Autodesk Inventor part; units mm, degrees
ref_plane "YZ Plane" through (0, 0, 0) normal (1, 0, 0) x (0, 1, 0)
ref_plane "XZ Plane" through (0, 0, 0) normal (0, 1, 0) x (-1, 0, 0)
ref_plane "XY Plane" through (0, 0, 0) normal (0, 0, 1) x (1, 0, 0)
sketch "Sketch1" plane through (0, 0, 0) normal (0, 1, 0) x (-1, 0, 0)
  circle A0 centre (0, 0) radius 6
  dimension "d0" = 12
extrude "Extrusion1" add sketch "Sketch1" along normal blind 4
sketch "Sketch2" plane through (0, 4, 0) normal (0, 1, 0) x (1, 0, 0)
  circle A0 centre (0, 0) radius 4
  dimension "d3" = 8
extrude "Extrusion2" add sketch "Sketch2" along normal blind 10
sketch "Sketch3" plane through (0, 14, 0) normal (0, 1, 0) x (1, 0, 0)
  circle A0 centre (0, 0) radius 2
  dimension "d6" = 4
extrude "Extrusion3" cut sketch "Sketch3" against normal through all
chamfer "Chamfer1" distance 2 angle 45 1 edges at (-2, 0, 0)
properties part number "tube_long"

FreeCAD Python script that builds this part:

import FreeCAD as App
import Part
import Sketcher
Q = App.Units.Quantity


def edges_at(feature, points):
    """Names of the edges that pass closest to the given points."""
    edges = feature.Shape.Edges
    near = lambda p: min(range(len(edges)), key=lambda i: edges[i].distToShape(Part.Vertex(*p))[0])
    return sorted({f"Edge{near(p) + 1}" for p in points})

doc = App.newDocument("Part")
body = doc.addObject("PartDesign::Body", "Body")

sketch1 = body.newObject("Sketcher::SketchObject", "Sketch")
sketch1.AttachmentSupport = (doc.getObject("XZ_Plane"), [""])
sketch1.MapMode = "FlatFace"
sketch1.addGeometry(Part.Circle(App.Vector(0, 0, 0), App.Vector(0, 0, 1), 6), False)
sketch1.addConstraint([
    Sketcher.Constraint("Coincident", 0, 3, -1, 1),
    Sketcher.Constraint("Diameter", 0, Q("12 mm")),
])
pad1 = body.newObject("PartDesign::Pad", "Pad")
pad1.Profile = sketch1
pad1.Length = 4
pad1.Reversed = True

sketch2 = body.newObject("Sketcher::SketchObject", "Sketch001")
sketch2.AttachmentSupport = (doc.getObject("XZ_Plane"), [""])
sketch2.MapMode = "FlatFace"
sketch2.AttachmentOffset = App.Placement(App.Vector(0, 0, -4), App.Rotation())
sketch2.addGeometry(Part.Circle(App.Vector(0, 0, 0), App.Vector(0, 0, 1), 4), False)
sketch2.addConstraint([
    Sketcher.Constraint("Coincident", 0, 3, -1, 1),
    Sketcher.Constraint("Diameter", 0, Q("8 mm")),
])
pad2 = body.newObject("PartDesign::Pad", "Pad001")
pad2.Profile = sketch2
pad2.Length = 10
pad2.Reversed = True

sketch3 = body.newObject("Sketcher::SketchObject", "Sketch002")
sketch3.AttachmentSupport = (doc.getObject("XZ_Plane"), [""])
sketch3.MapMode = "FlatFace"
sketch3.AttachmentOffset = App.Placement(App.Vector(0, 0, -14), App.Rotation())
sketch3.addGeometry(Part.Circle(App.Vector(0, 0, 0), App.Vector(0, 0, 1), 2), False)
sketch3.addConstraint([
    Sketcher.Constraint("Coincident", 0, 3, -1, 1),
    Sketcher.Constraint("Diameter", 0, Q("4 mm")),
])
pocket1 = body.newObject("PartDesign::Pocket", "Pocket")
pocket1.Profile = sketch3
pocket1.Type = "ThroughAll"
pocket1.Reversed = True
doc.recompute()

chamfer = body.newObject("PartDesign::Chamfer", "Chamfer")
chamfer.Base = (pocket1, edges_at(pocket1, [(-2, 0, 0)]))
chamfer.Size = 2

doc.recompute()
